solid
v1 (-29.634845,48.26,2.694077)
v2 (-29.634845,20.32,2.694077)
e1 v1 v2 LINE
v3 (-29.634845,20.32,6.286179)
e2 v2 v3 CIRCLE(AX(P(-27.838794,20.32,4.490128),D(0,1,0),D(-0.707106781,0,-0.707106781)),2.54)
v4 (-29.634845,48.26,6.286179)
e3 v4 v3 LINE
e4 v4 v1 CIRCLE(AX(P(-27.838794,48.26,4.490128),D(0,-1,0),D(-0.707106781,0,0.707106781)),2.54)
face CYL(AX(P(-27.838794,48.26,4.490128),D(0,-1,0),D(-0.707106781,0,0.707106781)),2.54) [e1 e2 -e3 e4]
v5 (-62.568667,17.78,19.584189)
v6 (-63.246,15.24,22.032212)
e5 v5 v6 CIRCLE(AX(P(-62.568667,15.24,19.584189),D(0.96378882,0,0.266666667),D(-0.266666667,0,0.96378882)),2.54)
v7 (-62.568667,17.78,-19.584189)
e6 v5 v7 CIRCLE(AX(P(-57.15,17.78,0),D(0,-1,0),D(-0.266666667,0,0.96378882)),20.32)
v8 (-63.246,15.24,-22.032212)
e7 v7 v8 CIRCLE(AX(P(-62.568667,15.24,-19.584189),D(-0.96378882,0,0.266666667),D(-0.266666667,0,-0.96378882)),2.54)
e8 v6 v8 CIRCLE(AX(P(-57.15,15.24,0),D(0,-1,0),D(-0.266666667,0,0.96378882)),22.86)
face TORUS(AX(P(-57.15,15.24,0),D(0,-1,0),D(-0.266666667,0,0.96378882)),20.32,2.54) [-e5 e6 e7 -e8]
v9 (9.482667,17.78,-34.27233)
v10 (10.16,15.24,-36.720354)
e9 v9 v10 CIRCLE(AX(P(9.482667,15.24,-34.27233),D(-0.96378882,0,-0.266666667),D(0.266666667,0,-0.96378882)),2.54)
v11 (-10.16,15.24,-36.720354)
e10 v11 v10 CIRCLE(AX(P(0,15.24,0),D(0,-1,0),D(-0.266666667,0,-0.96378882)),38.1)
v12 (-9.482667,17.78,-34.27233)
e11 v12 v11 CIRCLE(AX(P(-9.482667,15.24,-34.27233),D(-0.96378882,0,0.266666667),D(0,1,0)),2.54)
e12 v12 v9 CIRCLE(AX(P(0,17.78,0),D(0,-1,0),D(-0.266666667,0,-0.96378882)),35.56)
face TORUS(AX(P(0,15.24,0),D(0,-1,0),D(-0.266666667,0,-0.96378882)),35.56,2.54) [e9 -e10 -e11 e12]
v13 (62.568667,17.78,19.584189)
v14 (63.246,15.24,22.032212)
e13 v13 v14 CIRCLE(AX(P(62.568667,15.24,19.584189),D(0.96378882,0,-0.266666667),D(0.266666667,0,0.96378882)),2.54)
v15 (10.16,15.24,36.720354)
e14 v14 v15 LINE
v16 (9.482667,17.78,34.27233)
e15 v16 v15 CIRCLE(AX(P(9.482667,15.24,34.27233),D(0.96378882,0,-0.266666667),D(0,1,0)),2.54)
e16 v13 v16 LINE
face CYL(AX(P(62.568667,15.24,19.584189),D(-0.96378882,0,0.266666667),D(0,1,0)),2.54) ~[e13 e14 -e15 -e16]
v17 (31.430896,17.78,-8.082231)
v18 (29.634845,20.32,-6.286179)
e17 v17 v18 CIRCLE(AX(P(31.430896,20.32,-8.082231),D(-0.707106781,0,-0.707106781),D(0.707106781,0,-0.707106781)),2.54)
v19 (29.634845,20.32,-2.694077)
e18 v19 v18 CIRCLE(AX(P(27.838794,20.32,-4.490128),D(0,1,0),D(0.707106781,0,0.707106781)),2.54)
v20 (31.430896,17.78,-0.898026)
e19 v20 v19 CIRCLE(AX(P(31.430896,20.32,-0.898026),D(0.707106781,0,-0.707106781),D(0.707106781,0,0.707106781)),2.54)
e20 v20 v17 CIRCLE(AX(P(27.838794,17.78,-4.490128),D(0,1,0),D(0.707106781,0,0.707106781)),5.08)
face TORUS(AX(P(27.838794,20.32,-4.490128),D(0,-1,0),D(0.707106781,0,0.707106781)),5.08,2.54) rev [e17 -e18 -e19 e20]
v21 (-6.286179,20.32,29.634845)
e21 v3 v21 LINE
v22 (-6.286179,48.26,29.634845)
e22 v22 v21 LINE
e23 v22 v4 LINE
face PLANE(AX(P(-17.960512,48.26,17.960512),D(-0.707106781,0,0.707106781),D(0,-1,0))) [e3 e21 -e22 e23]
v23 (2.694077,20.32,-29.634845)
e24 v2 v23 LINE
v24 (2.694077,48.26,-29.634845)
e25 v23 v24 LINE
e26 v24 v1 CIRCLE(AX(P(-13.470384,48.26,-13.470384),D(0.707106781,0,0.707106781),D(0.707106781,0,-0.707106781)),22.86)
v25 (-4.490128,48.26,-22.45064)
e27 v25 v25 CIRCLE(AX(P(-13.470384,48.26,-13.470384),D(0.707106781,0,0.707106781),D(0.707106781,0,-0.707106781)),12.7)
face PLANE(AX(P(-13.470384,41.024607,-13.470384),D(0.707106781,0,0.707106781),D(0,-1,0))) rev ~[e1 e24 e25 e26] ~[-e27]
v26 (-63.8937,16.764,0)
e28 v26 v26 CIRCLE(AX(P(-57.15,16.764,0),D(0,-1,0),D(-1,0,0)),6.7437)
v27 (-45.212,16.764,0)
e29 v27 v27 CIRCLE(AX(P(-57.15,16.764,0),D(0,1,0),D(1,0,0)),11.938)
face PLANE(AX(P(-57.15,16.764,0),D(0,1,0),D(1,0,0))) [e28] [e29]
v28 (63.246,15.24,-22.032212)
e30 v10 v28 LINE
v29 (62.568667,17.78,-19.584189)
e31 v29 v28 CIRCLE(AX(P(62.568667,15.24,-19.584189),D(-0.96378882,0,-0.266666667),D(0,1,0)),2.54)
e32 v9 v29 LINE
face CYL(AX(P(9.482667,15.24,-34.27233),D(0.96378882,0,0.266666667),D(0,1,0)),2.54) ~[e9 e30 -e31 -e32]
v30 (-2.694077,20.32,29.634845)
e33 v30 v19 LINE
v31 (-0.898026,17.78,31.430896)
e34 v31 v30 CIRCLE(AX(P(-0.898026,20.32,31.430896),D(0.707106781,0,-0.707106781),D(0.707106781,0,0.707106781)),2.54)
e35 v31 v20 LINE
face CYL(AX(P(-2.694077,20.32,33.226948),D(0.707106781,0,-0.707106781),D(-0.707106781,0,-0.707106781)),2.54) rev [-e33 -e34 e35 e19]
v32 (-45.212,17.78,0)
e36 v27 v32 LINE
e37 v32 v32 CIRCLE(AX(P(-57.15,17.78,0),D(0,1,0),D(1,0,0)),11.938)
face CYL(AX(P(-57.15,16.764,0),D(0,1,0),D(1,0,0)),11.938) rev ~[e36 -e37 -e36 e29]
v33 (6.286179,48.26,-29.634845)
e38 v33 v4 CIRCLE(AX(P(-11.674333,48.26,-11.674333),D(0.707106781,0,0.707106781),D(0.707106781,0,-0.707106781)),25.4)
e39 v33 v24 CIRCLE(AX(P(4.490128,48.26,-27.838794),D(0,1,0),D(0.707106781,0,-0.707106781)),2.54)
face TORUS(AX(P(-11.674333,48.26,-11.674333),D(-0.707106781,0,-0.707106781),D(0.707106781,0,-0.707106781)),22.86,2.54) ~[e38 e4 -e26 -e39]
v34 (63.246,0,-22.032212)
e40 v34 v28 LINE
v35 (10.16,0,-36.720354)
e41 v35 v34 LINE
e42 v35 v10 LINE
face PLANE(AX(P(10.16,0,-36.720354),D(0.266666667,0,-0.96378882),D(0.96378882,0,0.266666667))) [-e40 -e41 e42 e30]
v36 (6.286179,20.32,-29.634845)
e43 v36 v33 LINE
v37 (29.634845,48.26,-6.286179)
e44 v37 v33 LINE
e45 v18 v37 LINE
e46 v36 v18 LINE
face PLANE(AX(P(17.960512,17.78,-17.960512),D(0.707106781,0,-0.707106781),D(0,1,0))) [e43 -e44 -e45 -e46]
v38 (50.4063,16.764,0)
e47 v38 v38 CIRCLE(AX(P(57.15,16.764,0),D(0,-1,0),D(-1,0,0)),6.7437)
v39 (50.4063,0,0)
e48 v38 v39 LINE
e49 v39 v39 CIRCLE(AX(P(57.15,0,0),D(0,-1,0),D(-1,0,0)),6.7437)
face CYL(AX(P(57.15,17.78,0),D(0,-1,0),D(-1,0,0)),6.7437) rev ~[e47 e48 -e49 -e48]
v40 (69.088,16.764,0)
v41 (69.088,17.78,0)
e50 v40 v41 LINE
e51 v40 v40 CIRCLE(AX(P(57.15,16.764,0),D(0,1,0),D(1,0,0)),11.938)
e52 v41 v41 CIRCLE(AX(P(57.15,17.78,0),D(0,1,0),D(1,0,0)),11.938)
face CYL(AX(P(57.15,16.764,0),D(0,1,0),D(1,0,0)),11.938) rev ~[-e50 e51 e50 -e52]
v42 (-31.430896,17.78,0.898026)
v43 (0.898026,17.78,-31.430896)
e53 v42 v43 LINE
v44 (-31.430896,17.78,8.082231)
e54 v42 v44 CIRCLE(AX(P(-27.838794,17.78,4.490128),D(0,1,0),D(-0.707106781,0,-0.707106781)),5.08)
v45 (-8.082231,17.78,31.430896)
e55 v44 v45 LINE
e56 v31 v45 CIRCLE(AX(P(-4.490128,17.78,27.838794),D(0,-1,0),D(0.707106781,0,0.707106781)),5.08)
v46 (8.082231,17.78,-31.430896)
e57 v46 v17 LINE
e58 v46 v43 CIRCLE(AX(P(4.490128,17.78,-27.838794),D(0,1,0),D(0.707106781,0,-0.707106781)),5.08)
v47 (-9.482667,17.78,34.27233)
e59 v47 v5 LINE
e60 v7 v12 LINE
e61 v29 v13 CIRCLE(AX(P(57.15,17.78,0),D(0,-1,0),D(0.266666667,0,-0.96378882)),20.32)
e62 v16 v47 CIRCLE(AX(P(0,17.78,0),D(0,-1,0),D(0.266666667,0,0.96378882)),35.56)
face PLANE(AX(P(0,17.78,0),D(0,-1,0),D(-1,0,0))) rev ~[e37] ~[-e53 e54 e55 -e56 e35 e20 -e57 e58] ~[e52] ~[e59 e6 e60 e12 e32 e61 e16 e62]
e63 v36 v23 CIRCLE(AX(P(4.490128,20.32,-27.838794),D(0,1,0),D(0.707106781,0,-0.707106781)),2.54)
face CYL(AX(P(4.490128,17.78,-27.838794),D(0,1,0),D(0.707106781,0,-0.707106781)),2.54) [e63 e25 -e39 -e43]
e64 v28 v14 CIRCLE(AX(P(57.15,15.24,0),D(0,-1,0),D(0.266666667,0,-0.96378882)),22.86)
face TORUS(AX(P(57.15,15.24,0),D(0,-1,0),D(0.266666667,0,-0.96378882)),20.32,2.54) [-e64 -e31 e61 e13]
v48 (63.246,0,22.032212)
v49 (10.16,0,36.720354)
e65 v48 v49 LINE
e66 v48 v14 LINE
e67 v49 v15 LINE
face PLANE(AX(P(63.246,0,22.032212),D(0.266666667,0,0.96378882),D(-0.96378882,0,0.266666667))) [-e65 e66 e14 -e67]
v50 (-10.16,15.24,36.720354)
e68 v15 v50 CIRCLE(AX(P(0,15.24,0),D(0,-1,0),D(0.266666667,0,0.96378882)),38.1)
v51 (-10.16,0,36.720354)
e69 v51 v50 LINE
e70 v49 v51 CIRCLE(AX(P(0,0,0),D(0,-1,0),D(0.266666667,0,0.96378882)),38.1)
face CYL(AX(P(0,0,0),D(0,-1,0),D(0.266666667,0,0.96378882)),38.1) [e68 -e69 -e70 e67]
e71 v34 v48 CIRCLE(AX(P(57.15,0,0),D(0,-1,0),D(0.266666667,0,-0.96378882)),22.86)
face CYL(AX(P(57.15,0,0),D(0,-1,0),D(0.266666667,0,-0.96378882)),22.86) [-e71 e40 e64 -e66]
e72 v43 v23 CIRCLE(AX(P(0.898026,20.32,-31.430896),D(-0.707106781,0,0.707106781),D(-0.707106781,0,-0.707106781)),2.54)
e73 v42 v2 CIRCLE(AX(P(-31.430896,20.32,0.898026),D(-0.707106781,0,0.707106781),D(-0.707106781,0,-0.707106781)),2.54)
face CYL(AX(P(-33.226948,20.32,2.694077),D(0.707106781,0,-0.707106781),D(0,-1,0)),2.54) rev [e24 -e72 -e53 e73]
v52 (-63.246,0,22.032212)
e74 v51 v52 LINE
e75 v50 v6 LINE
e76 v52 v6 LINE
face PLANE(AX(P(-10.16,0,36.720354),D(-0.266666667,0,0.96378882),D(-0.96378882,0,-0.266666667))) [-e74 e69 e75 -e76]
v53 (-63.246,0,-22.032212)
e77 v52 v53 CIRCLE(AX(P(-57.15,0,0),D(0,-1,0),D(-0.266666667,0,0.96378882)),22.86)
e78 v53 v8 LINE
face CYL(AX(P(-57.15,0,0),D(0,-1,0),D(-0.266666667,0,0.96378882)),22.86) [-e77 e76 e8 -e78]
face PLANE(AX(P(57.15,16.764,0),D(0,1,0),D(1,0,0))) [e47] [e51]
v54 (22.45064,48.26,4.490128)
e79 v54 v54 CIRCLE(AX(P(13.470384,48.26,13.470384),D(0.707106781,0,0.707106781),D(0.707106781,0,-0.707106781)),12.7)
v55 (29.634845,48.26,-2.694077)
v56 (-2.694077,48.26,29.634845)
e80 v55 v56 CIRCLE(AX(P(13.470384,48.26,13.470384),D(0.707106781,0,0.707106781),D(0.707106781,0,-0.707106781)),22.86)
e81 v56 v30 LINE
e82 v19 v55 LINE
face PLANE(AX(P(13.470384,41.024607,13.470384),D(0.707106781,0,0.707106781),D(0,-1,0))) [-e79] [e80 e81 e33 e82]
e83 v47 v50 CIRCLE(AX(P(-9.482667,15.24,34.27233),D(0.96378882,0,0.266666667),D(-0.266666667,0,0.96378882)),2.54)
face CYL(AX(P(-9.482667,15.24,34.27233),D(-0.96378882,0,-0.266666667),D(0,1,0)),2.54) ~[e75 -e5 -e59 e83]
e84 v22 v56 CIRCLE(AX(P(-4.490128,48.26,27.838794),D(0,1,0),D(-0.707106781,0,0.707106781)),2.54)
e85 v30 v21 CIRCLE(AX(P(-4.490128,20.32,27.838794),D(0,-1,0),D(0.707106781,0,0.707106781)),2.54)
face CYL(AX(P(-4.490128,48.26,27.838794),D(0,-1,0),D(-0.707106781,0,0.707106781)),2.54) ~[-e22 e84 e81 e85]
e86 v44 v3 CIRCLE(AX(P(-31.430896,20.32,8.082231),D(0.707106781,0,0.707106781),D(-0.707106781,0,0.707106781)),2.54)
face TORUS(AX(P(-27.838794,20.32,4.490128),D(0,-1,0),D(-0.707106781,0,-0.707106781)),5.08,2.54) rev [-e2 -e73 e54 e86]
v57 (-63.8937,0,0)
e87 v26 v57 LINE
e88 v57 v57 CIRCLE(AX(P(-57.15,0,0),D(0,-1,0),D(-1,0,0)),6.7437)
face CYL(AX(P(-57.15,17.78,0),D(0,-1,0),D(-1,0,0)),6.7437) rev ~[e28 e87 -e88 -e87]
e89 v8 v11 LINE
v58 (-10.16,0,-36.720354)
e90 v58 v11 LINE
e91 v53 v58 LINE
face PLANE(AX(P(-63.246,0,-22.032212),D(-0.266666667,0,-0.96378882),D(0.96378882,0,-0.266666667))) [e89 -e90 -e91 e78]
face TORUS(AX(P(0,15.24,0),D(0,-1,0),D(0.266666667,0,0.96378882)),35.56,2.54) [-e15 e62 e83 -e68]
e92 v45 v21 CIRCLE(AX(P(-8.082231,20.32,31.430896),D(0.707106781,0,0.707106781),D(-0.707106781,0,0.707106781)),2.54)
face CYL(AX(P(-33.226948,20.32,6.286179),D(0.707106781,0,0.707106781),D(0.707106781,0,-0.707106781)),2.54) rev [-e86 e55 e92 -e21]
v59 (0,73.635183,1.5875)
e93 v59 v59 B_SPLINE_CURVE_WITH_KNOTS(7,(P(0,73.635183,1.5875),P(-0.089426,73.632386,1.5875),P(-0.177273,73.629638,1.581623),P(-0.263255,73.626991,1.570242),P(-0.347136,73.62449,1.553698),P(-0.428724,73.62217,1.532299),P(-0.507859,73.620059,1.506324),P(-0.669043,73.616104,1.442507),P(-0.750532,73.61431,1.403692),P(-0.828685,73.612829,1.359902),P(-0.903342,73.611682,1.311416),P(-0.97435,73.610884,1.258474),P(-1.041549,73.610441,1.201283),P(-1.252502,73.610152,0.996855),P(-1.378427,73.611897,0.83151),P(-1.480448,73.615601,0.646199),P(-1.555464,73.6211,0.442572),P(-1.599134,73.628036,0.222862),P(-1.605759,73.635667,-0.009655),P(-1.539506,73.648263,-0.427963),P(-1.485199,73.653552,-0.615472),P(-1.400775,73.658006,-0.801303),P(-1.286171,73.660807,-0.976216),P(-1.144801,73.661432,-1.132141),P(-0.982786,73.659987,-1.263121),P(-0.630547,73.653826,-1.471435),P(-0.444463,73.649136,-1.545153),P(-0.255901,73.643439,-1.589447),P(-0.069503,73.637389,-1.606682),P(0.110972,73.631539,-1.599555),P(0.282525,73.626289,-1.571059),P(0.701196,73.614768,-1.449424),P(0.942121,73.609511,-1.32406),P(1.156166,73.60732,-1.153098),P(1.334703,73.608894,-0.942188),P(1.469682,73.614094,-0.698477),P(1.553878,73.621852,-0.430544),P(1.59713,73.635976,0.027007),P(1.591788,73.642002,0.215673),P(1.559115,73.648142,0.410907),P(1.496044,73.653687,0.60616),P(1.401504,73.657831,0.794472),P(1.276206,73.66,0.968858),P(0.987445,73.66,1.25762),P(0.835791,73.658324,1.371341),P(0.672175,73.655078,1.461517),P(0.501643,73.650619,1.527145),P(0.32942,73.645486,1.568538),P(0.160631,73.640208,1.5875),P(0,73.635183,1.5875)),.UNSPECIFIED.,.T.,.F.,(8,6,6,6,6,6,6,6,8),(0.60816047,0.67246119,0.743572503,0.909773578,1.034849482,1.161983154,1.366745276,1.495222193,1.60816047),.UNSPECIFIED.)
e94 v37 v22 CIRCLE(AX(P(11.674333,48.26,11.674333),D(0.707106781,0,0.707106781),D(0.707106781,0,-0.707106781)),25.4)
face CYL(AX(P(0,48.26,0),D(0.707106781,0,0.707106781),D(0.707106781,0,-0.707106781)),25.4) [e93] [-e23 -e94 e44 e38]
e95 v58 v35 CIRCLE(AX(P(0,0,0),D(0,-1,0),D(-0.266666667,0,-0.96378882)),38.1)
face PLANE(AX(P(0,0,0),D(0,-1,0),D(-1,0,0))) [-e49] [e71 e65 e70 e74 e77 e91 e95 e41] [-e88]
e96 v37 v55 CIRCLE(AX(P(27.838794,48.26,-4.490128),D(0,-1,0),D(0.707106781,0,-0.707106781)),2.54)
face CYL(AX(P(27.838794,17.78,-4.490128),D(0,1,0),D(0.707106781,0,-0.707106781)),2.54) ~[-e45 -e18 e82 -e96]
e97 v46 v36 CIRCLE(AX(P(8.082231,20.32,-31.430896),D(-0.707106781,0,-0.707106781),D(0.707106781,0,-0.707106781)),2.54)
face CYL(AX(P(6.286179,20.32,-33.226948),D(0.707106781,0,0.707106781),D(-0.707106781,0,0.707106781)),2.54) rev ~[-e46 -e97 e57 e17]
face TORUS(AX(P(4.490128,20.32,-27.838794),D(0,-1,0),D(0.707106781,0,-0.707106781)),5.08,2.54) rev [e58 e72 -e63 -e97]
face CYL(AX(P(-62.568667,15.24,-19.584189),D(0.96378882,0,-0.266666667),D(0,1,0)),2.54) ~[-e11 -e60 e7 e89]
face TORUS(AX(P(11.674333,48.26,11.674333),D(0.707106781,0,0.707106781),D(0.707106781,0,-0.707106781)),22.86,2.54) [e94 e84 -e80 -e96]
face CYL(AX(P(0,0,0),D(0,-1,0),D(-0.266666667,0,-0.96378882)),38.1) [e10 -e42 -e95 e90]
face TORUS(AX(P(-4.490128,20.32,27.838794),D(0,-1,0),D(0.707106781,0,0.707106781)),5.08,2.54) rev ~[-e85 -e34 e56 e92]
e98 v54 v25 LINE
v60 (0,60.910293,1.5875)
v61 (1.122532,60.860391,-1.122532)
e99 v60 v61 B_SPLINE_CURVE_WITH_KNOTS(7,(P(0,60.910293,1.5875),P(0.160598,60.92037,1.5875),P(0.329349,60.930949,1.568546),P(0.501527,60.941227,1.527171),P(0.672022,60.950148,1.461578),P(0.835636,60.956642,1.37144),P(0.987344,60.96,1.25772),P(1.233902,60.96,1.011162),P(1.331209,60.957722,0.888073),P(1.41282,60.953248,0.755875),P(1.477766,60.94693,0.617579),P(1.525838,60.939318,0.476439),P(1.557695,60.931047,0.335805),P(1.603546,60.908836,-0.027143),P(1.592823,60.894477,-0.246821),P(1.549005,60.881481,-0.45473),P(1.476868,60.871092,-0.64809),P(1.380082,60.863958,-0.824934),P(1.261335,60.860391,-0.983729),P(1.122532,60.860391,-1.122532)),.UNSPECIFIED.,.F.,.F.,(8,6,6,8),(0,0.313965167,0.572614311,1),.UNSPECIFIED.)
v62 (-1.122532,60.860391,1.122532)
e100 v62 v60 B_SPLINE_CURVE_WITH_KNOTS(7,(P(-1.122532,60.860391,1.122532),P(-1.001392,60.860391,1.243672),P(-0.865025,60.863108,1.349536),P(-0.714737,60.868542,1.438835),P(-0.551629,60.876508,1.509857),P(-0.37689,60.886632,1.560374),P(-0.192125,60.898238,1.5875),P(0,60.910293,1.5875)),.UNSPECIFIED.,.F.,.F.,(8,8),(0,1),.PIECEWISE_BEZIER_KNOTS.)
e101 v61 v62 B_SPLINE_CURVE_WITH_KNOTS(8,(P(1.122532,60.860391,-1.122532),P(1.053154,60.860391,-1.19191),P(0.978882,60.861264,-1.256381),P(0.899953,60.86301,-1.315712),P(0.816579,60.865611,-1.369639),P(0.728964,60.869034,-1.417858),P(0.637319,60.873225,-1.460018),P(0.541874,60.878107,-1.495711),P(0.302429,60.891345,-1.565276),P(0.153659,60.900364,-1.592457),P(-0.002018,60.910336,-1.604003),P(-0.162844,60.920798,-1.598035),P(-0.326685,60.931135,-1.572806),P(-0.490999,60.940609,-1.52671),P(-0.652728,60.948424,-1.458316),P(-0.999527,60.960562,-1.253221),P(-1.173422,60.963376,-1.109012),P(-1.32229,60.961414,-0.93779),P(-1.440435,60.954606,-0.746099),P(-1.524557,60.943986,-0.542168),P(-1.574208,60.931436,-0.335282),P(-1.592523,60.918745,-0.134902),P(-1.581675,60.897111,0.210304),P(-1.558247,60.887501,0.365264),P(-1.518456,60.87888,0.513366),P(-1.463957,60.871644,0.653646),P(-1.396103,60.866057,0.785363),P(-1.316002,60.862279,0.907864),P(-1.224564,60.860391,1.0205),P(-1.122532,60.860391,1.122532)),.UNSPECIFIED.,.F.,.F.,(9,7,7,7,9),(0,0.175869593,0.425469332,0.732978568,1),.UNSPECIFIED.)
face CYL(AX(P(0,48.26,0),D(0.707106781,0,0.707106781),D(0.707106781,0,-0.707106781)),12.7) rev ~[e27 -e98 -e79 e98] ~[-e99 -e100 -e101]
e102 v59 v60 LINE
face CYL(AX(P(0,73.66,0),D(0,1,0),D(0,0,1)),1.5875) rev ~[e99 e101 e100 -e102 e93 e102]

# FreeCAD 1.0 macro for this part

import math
import FreeCAD as App
import Part
import Sketcher
Q = App.Units.Quantity


def edges_at(feature, points):
    """Names of the edges that pass closest to the given points."""
    edges = feature.Shape.Edges
    near = lambda p: min(range(len(edges)), key=lambda i: edges[i].distToShape(Part.Vertex(*p))[0])
    return sorted({f"Edge{near(p) + 1}" for p in points})

doc = App.newDocument("Part")
body = doc.addObject("PartDesign::Body", "Body")

# Sketch on XZ plane
sketch1 = doc.addObject("Sketcher::SketchObject", "Sketch")
body.addObject(sketch1)
sketch1.AttachmentSupport = (doc.XZ_Plane, [""])
sketch1.MapMode = "FlatFace"
sketch1.addGeometry([
    Part.LineSegment(App.Vector(-10, -37, 0), App.Vector(-63, -22, 0)),  # 0
    Part.ArcOfCircle(Part.Circle(App.Vector(-57, 0, 0), App.Vector(0, 0, 1), 23), math.radians(105), math.radians(255)),  # 1
    Part.LineSegment(App.Vector(-63, 22, 0), App.Vector(-10, 37, 0)),  # 2
    Part.ArcOfCircle(Part.Circle(App.Vector(0, 0, 0), App.Vector(0, 0, 1), 38), math.radians(75), math.radians(105)),  # 3
    Part.LineSegment(App.Vector(10, 37, 0), App.Vector(63, 22, 0)),  # 4
    Part.ArcOfCircle(Part.Circle(App.Vector(57, 0, 0), App.Vector(0, 0, 1), 23), math.radians(-75), math.radians(75)),  # 5
    Part.LineSegment(App.Vector(63, -22, 0), App.Vector(10, -37, 0)),  # 6
    Part.ArcOfCircle(Part.Circle(App.Vector(0, 0, 0), App.Vector(0, 0, 1), 38), math.radians(-105), math.radians(-75)),  # 7
], False)
sketch1.addConstraint([
    Sketcher.Constraint("Tangent", 0, 2, 1, 2),
    Sketcher.Constraint("Tangent", 1, 1, 2, 1),
    Sketcher.Constraint("Tangent", 2, 2, 3, 2),
    Sketcher.Constraint("Tangent", 3, 1, 4, 1),
    Sketcher.Constraint("Tangent", 4, 2, 5, 2),
    Sketcher.Constraint("Tangent", 5, 1, 6, 1),
    Sketcher.Constraint("Tangent", 6, 2, 7, 2),
    Sketcher.Constraint("Tangent", 7, 1, 0, 1),
    Sketcher.Constraint("Coincident", 3, 3, -1, 1),
    Sketcher.Constraint("Coincident", 7, 3, -1, 1),
    Sketcher.Constraint("Equal", 1, 5),
    Sketcher.Constraint("Equal", 3, 7),
    Sketcher.Constraint("Symmetric", 1, 3, 5, 3, -1, 1),
    Sketcher.Constraint("PointOnObject", 1, 3, -1),
    Sketcher.Constraint("Radius", 1, Q("0.9 in")),
    Sketcher.Constraint("Radius", 3, Q("1.5 in")),
    Sketcher.Constraint("DistanceX", 2, 2, -1, 1, Q("0.4 in")),
])
pad1 = doc.addObject("PartDesign::Pad", "Pad")
body.addObject(pad1)
pad1.Profile = sketch1
pad1.Length = Q("0.7 in")
pad1.Reversed = True

# Sketch on XZ plane
sketch2 = doc.addObject("Sketcher::SketchObject", "Sketch001")
body.addObject(sketch2)
sketch2.AttachmentSupport = (doc.XZ_Plane, [""])
sketch2.MapMode = "FlatFace"
sketch2.AttachmentOffset = App.Placement(App.Vector(0, 0, -0.7 * 25.4), App.Rotation())
sketch2.addGeometry([
    Part.Circle(App.Vector(57, 0, 0), App.Vector(0, 0, 1), 7),
    Part.Circle(App.Vector(-57, 0, 0), App.Vector(0, 0, 1), 7),
], False)
sketch2.addConstraint([
    Sketcher.Constraint("Equal", 0, 1),
    Sketcher.Constraint("Symmetric", 0, 3, 1, 3, -1, 1),
    Sketcher.Constraint("PointOnObject", 0, 3, -1),
    Sketcher.Constraint("Diameter", 0, Q("0.531 in")),
    Sketcher.Constraint("DistanceX", 1, 3, 0, 3, Q("4.5 in")),
])
doc.recompute()
hole = doc.addObject("PartDesign::Hole", "Hole")
body.addObject(hole)
hole.Profile = sketch2
hole.ThreadType = "None"
hole.Diameter = Q("0.531 in")
hole.DepthType = "ThroughAll"
hole.HoleCutType = "Counterbore"
hole.HoleCutDiameter = Q("0.94 in")
hole.HoleCutDepth = Q("0.04 in")
hole.Reversed = True

# Sketch on an angled plane
sketch3 = doc.addObject("Sketcher::SketchObject", "Sketch002")
body.addObject(sketch3)
sketch3.Placement = App.Placement(App.Vector(0, 0, 0), App.Rotation(App.Vector(0, -1, 0), App.Vector(0.707106781, 0, -0.707106781), App.Vector(0.707106781, 0, 0.707106781), "ZXY"))
sketch3.addGeometry([
    Part.LineSegment(App.Vector(-48, -25, 0), App.Vector(-18, -25, 0)),  # 0
    Part.LineSegment(App.Vector(-18, -25, 0), App.Vector(-18, 25, 0)),  # 1
    Part.LineSegment(App.Vector(-18, 25, 0), App.Vector(-48, 25, 0)),  # 2
    Part.ArcOfCircle(Part.Circle(App.Vector(-48, 0, 0), App.Vector(0, 0, 1), 25), math.radians(90), math.radians(270)),  # 3
    Part.Circle(App.Vector(-48, 0, 0), App.Vector(0, 0, 1), 13),  # 4
], False)
sketch3.addConstraint([
    Sketcher.Constraint("Coincident", 0, 2, 1, 1),
    Sketcher.Constraint("Coincident", 1, 2, 2, 1),
    Sketcher.Constraint("Tangent", 2, 2, 3, 1),
    Sketcher.Constraint("Tangent", 3, 2, 0, 1),
    Sketcher.Constraint("Horizontal", 0),
    Sketcher.Constraint("Vertical", 1),
    Sketcher.Constraint("Horizontal", 2),
    Sketcher.Constraint("Coincident", 4, 3, 3, 3),
    Sketcher.Constraint("PointOnObject", 3, 3, -1),
    Sketcher.Constraint("Diameter", 4, Q("1 in")),
    Sketcher.Constraint("Radius", 3, Q("1 in")),
    Sketcher.Constraint("DistanceX", 0, 1, 0, 2, Q("1.2 in")),
    Sketcher.Constraint("DistanceX", 3, 3, -1, 1, Q("1.9 in")),
])
pad2 = doc.addObject("PartDesign::Pad", "Pad001")
body.addObject(pad2)
pad2.Profile = sketch3
pad2.Type = "TwoLengths"
pad2.Length = Q("0.75 in")
pad2.Length2 = Q("0.75 in")

# Sketch on XZ plane
sketch4 = doc.addObject("Sketcher::SketchObject", "Sketch003")
body.addObject(sketch4)
sketch4.AttachmentSupport = (doc.XZ_Plane, [""])
sketch4.MapMode = "FlatFace"
sketch4.AttachmentOffset = App.Placement(App.Vector(0, 0, -2.9 * 25.4), App.Rotation())
sketch4.addGeometry(Part.Circle(App.Vector(0, 0, 0), App.Vector(0, 0, 1), 1.6), False)
sketch4.addConstraint([
    Sketcher.Constraint("Coincident", 0, 3, -1, 1),
    Sketcher.Constraint("Diameter", 0, Q("0.125 in")),
])
pocket1 = doc.addObject("PartDesign::Pocket", "Pocket")
body.addObject(pocket1)
pocket1.Profile = sketch4
pocket1.Type = "UpToFirst"
pocket1.Reversed = True
doc.recompute()

fillet = doc.addObject("PartDesign::Fillet", "Fillet")
body.addObject(fillet)
fillet.Base = (pocket1, edges_at(pocket1, [
    (-80.01, 17.78, 0),
    (-36.703, 17.78, 29.376),
    (0, 17.78, 38.1),
    (36.703, 17.78, 29.376),
    (80.01, 17.78, 0),
    (36.703, 17.78, -29.376),
    (-13.47, 73.66, -13.47),
    (4.49, 33.02, -31.431),
    (0, 17.78, -38.1),
    (17.961, 17.78, -17.961),
    (-13.47, 17.78, -13.47),
    (-17.961, 17.78, 17.961),
    (-31.431, 33.02, 4.49),
    (13.47, 73.66, 13.47),
    (-4.49, 33.02, 31.431),
    (13.47, 17.78, 13.47),
    (31.431, 33.02, -4.49),
    (-36.703, 17.78, -29.376),
]))
fillet.Radius = Q("0.1 in")

doc.recompute()
